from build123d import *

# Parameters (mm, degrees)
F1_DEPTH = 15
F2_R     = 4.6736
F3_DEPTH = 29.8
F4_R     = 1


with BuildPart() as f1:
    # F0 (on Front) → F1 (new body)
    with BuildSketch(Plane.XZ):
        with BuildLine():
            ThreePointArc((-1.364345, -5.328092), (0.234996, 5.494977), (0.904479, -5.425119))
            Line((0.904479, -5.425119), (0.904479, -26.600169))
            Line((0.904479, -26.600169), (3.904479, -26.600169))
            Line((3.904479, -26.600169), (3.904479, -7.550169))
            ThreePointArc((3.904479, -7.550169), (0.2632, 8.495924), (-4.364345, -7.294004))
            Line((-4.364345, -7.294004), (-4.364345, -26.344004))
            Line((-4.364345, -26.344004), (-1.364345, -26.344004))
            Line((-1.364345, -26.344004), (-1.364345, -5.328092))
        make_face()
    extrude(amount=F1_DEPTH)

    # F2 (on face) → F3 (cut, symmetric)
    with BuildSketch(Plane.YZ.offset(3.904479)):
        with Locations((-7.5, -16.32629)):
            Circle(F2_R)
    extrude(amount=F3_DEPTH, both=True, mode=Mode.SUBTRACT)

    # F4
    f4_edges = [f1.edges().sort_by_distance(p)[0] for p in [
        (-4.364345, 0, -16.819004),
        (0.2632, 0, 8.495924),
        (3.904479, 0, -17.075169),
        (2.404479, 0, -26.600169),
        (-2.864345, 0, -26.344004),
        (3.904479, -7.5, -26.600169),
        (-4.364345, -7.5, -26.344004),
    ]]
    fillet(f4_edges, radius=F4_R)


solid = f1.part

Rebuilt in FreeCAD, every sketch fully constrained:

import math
import FreeCAD as App
import Part
import Sketcher


def edges_at(feature, points):
    """Names of the edges that pass closest to the given points."""
    edges = feature.Shape.Edges
    near = lambda p: min(range(len(edges)), key=lambda i: edges[i].distToShape(Part.Vertex(*p))[0])
    return sorted({f"Edge{near(p) + 1}" for p in points})

doc = App.newDocument("Part")
body = doc.addObject("PartDesign::Body", "Body")

# Sketch on XZ plane
sketch1 = doc.addObject("Sketcher::SketchObject", "Sketch")
body.addObject(sketch1)
sketch1.AttachmentSupport = (doc.XZ_Plane, [""])
sketch1.MapMode = "FlatFace"
sketch1.addGeometry(Part.ArcOfCircle(Part.Circle(App.Vector(-0.000001, 0, 0), App.Vector(0, 0, 1), 5.5), math.radians(-80.534664), math.radians(255.637103)), False)
sketch1.addGeometry(Part.LineSegment(App.Vector(0.904479, -5.425119, 0), App.Vector(0.904479, -26.600169, 0)), False)
sketch1.addGeometry(Part.LineSegment(App.Vector(0.904479, -26.600169, 0), App.Vector(3.904479, -26.600169, 0)), False)
sketch1.addGeometry(Part.LineSegment(App.Vector(3.904479, -26.600169, 0), App.Vector(3.904479, -7.550169, 0)), False)
sketch1.addGeometry(Part.ArcOfCircle(Part.Circle(App.Vector(0, 0, 0), App.Vector(0, 0, 1), 8.5), math.radians(-62.654801), math.radians(239.105933)), False)
sketch1.addGeometry(Part.LineSegment(App.Vector(-4.364345, -7.294004, 0), App.Vector(-4.364345, -26.344004, 0)), False)
sketch1.addGeometry(Part.LineSegment(App.Vector(-4.364345, -26.344004, 0), App.Vector(-1.364345, -26.344004, 0)), False)
sketch1.addGeometry(Part.LineSegment(App.Vector(-1.364345, -26.344004, 0), App.Vector(-1.364345, -5.328092, 0)), False)
sketch1.addConstraint(Sketcher.Constraint("Coincident", 0, 1, 1, 1))
sketch1.addConstraint(Sketcher.Constraint("Coincident", 1, 2, 2, 1))
sketch1.addConstraint(Sketcher.Constraint("Coincident", 2, 2, 3, 1))
sketch1.addConstraint(Sketcher.Constraint("Coincident", 3, 2, 4, 1))
sketch1.addConstraint(Sketcher.Constraint("Coincident", 4, 2, 5, 1))
sketch1.addConstraint(Sketcher.Constraint("Coincident", 5, 2, 6, 1))
sketch1.addConstraint(Sketcher.Constraint("Coincident", 6, 2, 7, 1))
sketch1.addConstraint(Sketcher.Constraint("Coincident", 7, 2, 0, 2))
sketch1.addConstraint(Sketcher.Constraint("Vertical", 1))
sketch1.addConstraint(Sketcher.Constraint("Horizontal", 2))
sketch1.addConstraint(Sketcher.Constraint("Vertical", 3))
sketch1.addConstraint(Sketcher.Constraint("Vertical", 5))
sketch1.addConstraint(Sketcher.Constraint("Horizontal", 6))
sketch1.addConstraint(Sketcher.Constraint("Vertical", 7))
sketch1.addConstraint(Sketcher.Constraint("Coincident", 0, 3, -1, 1))
sketch1.addConstraint(Sketcher.Constraint("Coincident", 4, 3, -1, 1))
sketch1.addConstraint(Sketcher.Constraint("Equal", 2, 6))
sketch1.addConstraint(Sketcher.Constraint("Equal", 3, 5))
sketch1.addConstraint(Sketcher.Constraint("Radius", 0, 5.5))
sketch1.addConstraint(Sketcher.Constraint("Radius", 4, 8.5))
sketch1.addConstraint(Sketcher.Constraint("DistanceX", 2, 1, 2, 2, 3.0))
sketch1.addConstraint(Sketcher.Constraint("DistanceY", 3, 1, 3, 2, 19.05))
sketch1.addConstraint(Sketcher.Constraint("DistanceY", 1, 2, 1, 1, 21.17505))
sketch1.addConstraint(Sketcher.Constraint("DistanceY", 7, 1, 7, 2, 21.015912))
pad1 = doc.addObject("PartDesign::Pad", "Pad")
body.addObject(pad1)
pad1.Profile = sketch1
pad1.Length = 15

# Sketch on YZ plane
sketch2 = doc.addObject("Sketcher::SketchObject", "Sketch001")
body.addObject(sketch2)
sketch2.AttachmentSupport = (doc.YZ_Plane, [""])
sketch2.MapMode = "FlatFace"
sketch2.AttachmentOffset = App.Placement(App.Vector(0, 0, 3.904479), App.Rotation())
sketch2.addGeometry(Part.Circle(App.Vector(-7.5, -16.32629, 0), App.Vector(0, 0, 1), 4.6736), False)
sketch2.addConstraint(Sketcher.Constraint("Diameter", 0, 9.3472))
sketch2.addConstraint(Sketcher.Constraint("DistanceX", 0, 3, -1, 1, 7.5))
sketch2.addConstraint(Sketcher.Constraint("DistanceY", 0, 3, -1, 1, 16.32629))
pocket1 = doc.addObject("PartDesign::Pocket", "Pocket")
body.addObject(pocket1)
pocket1.Profile = sketch2
pocket1.Length = 59.6
pocket1.Midplane = True
doc.recompute()

fillet = doc.addObject("PartDesign::Fillet", "Fillet")
body.addObject(fillet)
fillet.Base = (pocket1, edges_at(pocket1, [
    (-4.364, 0, -16.819),
    (0.263, 0, 8.496),
    (3.904, 0, -17.075),
    (2.404, 0, -26.6),
    (-2.864, 0, -26.344),
    (3.904, -7.5, -26.6),
    (-4.364, -7.5, -26.344),
]))
fillet.Radius = 1

doc.recompute()
